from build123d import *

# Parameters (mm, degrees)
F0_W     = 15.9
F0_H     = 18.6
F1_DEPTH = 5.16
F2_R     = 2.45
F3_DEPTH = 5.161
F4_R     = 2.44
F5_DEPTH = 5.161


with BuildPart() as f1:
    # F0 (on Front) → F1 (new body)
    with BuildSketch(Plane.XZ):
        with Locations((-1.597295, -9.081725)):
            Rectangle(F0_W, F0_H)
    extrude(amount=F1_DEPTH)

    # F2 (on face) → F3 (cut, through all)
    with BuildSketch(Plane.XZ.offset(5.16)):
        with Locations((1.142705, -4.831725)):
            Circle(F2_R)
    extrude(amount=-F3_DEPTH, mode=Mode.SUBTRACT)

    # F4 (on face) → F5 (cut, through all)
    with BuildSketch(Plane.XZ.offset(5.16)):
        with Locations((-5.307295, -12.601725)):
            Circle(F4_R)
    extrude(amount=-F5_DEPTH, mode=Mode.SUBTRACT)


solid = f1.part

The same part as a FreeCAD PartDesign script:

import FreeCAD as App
import Part
import Sketcher

doc = App.newDocument("Part")
body = doc.addObject("PartDesign::Body", "Body")

sketch1 = body.newObject("Sketcher::SketchObject", "Sketch")
sketch1.AttachmentSupport = (doc.getObject("XZ_Plane"), [""])
sketch1.MapMode = "FlatFace"
sketch1.addGeometry([
    Part.LineSegment(App.Vector(-10, 0, 0), App.Vector(-10, -18, 0)),
    Part.LineSegment(App.Vector(-10, -18, 0), App.Vector(6, -18, 0)),
    Part.LineSegment(App.Vector(6, -18, 0), App.Vector(6, 0, 0)),
    Part.LineSegment(App.Vector(6, 0, 0), App.Vector(-10, 0, 0)),
], False)
sketch1.addConstraint([
    Sketcher.Constraint("Coincident", 0, 2, 1, 1),
    Sketcher.Constraint("Coincident", 1, 2, 2, 1),
    Sketcher.Constraint("Coincident", 2, 2, 3, 1),
    Sketcher.Constraint("Coincident", 3, 2, 0, 1),
    Sketcher.Constraint("Vertical", 0),
    Sketcher.Constraint("Horizontal", 1),
    Sketcher.Constraint("Vertical", 2),
    Sketcher.Constraint("Horizontal", 3),
    Sketcher.Constraint("DistanceX", 1, 1, 1, 2, 15.9),
    Sketcher.Constraint("DistanceY", 0, 2, 0, 1, 18.6),
    Sketcher.Constraint("DistanceX", 0, 2, -1, 1, 9.547295),
    Sketcher.Constraint("DistanceY", 0, 2, -1, 1, 18.381725),
])
pad1 = body.newObject("PartDesign::Pad", "Pad")
pad1.Profile = sketch1
pad1.Length = 5.16

sketch2 = body.newObject("Sketcher::SketchObject", "Sketch001")
sketch2.AttachmentSupport = (doc.getObject("XZ_Plane"), [""])
sketch2.MapMode = "FlatFace"
sketch2.AttachmentOffset = App.Placement(App.Vector(0, 0, 5.16), App.Rotation())
sketch2.addGeometry(Part.Circle(App.Vector(1.1, -4.8, 0), App.Vector(0, 0, 1), 2.5), False)
sketch2.addConstraint([
    Sketcher.Constraint("Diameter", 0, 4.9),
    Sketcher.Constraint("DistanceX", -1, 1, 0, 3, 1.142705),
    Sketcher.Constraint("DistanceY", 0, 3, -1, 1, 4.831725),
])
pocket1 = body.newObject("PartDesign::Pocket", "Pocket")
pocket1.Profile = sketch2
pocket1.Type = "ThroughAll"

sketch3 = body.newObject("Sketcher::SketchObject", "Sketch002")
sketch3.AttachmentSupport = (doc.getObject("XZ_Plane"), [""])
sketch3.MapMode = "FlatFace"
sketch3.AttachmentOffset = App.Placement(App.Vector(0, 0, 5.16), App.Rotation())
sketch3.addGeometry(Part.Circle(App.Vector(-5.3, -12.6, 0), App.Vector(0, 0, 1), 2.4), False)
sketch3.addConstraint([
    Sketcher.Constraint("Diameter", 0, 4.88),
    Sketcher.Constraint("DistanceX", 0, 3, -1, 1, 5.307295),
    Sketcher.Constraint("DistanceY", 0, 3, -1, 1, 12.601725),
])
pocket2 = body.newObject("PartDesign::Pocket", "Pocket001")
pocket2.Profile = sketch3
pocket2.Type = "ThroughAll"

doc.recompute()
